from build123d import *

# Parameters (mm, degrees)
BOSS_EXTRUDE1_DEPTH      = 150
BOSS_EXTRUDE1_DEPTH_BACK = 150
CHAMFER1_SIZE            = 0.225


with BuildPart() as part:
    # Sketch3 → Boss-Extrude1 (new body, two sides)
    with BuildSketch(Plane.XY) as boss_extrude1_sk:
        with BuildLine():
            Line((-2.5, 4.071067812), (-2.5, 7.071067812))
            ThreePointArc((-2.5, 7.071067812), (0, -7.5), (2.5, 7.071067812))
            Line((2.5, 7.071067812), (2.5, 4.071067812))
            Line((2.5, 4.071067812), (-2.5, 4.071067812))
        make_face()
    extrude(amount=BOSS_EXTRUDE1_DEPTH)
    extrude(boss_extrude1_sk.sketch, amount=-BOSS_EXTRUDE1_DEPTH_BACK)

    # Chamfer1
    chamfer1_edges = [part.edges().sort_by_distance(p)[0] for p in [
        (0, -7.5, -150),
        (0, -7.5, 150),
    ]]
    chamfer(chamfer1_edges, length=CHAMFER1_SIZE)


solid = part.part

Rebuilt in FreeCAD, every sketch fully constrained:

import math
import FreeCAD as App
import Part
import Sketcher
from FreeCAD import Vector
Q = App.Units.Quantity


def edges_at(feature, points):
    """Names of the edges that pass closest to the given points."""
    edges = feature.Shape.Edges
    near = lambda p: min(range(len(edges)), key=lambda i: edges[i].distToShape(Part.Vertex(*p))[0])
    return sorted({f"Edge{near(p) + 1}" for p in points})

doc = App.newDocument("Part")
body = doc.addObject("PartDesign::Body", "Body")

# Sketch on XY plane
sketch1 = body.newObject("Sketcher::SketchObject", "Sketch")
sketch1.AttachmentSupport = (doc.getObject("XY_Plane"), [""])
sketch1.MapMode = "FlatFace"
sketch1.addGeometry([
    Part.LineSegment(Vector(-2.5, 4.1, 0), Vector(-2.5, 7.1, 0)),
    Part.ArcOfCircle(Part.Circle(Vector(0, 0, 0), Vector(0, 0, 1), 7.5), math.radians(109), math.radians(431)),
    Part.LineSegment(Vector(2.5, 7.1, 0), Vector(2.5, 4.1, 0)),
    Part.LineSegment(Vector(2.5, 4.1, 0), Vector(-2.5, 4.1, 0)),
], False)
sketch1.addConstraint([
    Sketcher.Constraint("Coincident", 0, 2, 1, 1),
    Sketcher.Constraint("Coincident", 1, 2, 2, 1),
    Sketcher.Constraint("Coincident", 2, 2, 3, 1),
    Sketcher.Constraint("Coincident", 3, 2, 0, 1),
    Sketcher.Constraint("Vertical", 0),
    Sketcher.Constraint("Vertical", 2),
    Sketcher.Constraint("Horizontal", 3),
    Sketcher.Constraint("Coincident", 1, 3, -1, 1),
    Sketcher.Constraint("Horizontal", 0, 2, 1, 2),
    Sketcher.Constraint("Radius", 1, Q("7.5 mm")),
    Sketcher.Constraint("DistanceX", 3, 2, 3, 1, Q("5 mm")),
    Sketcher.Constraint("DistanceY", 0, 1, 0, 2, Q("3 mm")),
])
pad1 = body.newObject("PartDesign::Pad", "Pad")
pad1.Profile = sketch1
pad1.Type = "TwoLengths"
pad1.Length = 150
pad1.Length2 = 150
doc.recompute()

chamfer = body.newObject("PartDesign::Chamfer", "Chamfer")
chamfer.Base = (pad1, edges_at(pad1, [(0, -7.5, -150), (0, -7.5, 150)]))
chamfer.Size = 0.225

doc.recompute()
